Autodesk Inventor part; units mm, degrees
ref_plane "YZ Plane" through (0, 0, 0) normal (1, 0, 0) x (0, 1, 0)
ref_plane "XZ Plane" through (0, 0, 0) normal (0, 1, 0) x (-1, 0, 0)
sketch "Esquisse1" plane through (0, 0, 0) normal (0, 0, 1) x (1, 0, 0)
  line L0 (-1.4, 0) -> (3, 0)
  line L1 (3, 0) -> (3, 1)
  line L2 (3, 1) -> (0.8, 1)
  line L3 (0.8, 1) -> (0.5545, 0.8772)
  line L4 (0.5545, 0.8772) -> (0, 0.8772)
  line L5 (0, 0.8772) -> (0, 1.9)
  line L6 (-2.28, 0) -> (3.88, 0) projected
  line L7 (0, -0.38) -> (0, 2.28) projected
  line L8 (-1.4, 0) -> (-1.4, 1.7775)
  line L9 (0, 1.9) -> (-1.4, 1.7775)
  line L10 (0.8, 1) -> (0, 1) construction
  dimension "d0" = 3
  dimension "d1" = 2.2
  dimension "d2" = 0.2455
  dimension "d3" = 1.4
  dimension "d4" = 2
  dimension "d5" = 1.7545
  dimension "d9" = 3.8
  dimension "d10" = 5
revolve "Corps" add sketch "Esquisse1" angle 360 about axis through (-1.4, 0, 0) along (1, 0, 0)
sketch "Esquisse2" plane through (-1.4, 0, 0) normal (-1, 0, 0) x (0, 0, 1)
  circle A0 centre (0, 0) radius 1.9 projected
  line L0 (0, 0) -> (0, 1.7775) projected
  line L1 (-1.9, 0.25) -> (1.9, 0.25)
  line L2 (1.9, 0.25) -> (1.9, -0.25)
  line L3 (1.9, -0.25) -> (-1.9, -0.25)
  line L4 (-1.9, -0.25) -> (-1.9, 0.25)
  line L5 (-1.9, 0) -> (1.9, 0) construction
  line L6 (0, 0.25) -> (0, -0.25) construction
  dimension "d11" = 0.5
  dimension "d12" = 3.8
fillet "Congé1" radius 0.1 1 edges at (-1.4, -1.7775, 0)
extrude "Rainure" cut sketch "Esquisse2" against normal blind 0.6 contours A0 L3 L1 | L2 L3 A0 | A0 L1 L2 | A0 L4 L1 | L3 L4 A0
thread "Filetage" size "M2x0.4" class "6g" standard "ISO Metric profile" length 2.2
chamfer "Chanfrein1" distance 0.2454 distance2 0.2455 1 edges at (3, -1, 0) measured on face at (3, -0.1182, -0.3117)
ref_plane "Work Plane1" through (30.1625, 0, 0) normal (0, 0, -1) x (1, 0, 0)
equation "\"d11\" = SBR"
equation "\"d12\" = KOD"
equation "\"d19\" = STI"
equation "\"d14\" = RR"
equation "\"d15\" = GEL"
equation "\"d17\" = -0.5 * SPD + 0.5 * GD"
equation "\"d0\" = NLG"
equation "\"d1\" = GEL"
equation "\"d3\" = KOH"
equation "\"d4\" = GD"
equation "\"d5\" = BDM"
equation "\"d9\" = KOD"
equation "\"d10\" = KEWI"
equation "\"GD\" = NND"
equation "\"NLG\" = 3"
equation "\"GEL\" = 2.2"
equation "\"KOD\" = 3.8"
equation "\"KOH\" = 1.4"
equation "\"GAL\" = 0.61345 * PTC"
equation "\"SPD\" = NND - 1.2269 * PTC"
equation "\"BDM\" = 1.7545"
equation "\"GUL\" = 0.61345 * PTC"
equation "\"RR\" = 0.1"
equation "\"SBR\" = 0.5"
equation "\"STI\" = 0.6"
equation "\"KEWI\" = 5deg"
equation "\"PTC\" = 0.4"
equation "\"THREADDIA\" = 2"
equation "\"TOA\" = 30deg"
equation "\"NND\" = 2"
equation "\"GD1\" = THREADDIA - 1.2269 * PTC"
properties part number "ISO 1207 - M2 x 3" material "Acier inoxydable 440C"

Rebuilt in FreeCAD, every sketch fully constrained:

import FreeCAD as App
import Part
import Sketcher

V = App.Vector
Q = App.Units.Quantity


def edges_at(feature, points):
    """Names of the edges that pass closest to the given points."""
    edges = feature.Shape.Edges
    near = lambda p: min(range(len(edges)), key=lambda i: edges[i].distToShape(Part.Vertex(*p))[0])
    return sorted({f"Edge{near(p) + 1}" for p in points})


def add_polygon(sketch, points):
    """Adds a closed chain of lines whose ends are joined by coincident constraints."""
    first, n = sketch.GeometryCount, len(points)
    for a, b in zip(points, points[1:] + points[:1]):
        sketch.addGeometry(Part.LineSegment(App.Vector(*a, 0), App.Vector(*b, 0)), False)
    for i in range(n):
        sketch.addConstraint(Sketcher.Constraint("Coincident", first + i, 2, first + (i + 1) % n, 1))

doc = App.newDocument("Part")
body = doc.addObject("PartDesign::Body", "Body")

# Sketch on XY plane
sketch1 = body.newObject("Sketcher::SketchObject", "Sketch")
sketch1.AttachmentSupport = (doc.getObject("XY_Plane"), [""])
sketch1.MapMode = "FlatFace"
add_polygon(sketch1, [(-1.4, 1.78), (-1.4, 0), (3, 0), (3, 1), (0.8, 1), (0.55, 0.88), (0, 0.88), (0, 1.9)])  # lines 0-7
sketch1.addConstraint([
    Sketcher.Constraint("Vertical", 0),
    Sketcher.Constraint("Horizontal", 1),
    Sketcher.Constraint("Vertical", 2),
    Sketcher.Constraint("Horizontal", 3),
    Sketcher.Constraint("Horizontal", 5),
    Sketcher.Constraint("Vertical", 6),
    Sketcher.Constraint("PointOnObject", 0, 2, -1),
    Sketcher.Constraint("PointOnObject", 5, 2, -2),
    Sketcher.Constraint("DistanceX", 3, 2, 3, 1, 2.2),
    Sketcher.Constraint("DistanceX", -1, 1, 1, 2, 3.0),
    Sketcher.Constraint("DistanceX", 0, 2, -1, 1, 1.4),
    Sketcher.Constraint("DistanceY", 2, 1, 2, 2, 1.0),
    Sketcher.Constraint("Angle", 7, Q("-174.9994 deg")),
    Sketcher.Constraint("DistanceY", -1, 1, 6, 2, 1.9),
    Sketcher.Constraint("DistanceX", 4, 2, 3, 2, 0.2455),
    Sketcher.Constraint("DistanceY", 6, 1, 6, 2, 1.0228),
])
revolution = body.newObject("PartDesign::Revolution", "Revolution")
revolution.Profile = sketch1
revolution.ReferenceAxis = (sketch1, ["H_Axis"])
revolution.Angle = 360
doc.recompute()

fillet = body.newObject("PartDesign::Fillet", "Fillet")
fillet.Base = (revolution, edges_at(revolution, [(-1.4, -1.778, 0)]))
fillet.Radius = 0.1

# Sketch on YZ plane
sketch2 = body.newObject("Sketcher::SketchObject", "Sketch001")
sketch2.AttachmentSupport = (doc.getObject("YZ_Plane"), [""])
sketch2.MapMode = "FlatFace"
sketch2.AttachmentOffset = App.Placement(V(0, 0, -1.4), App.Rotation())
add_polygon(sketch2, [(-0.2, 1.9), (0.2, 1.9), (0.2, -1.9), (-0.2, -1.9)])  # lines 0-3
sketch2.addConstraint([
    Sketcher.Constraint("Horizontal", 0),
    Sketcher.Constraint("Vertical", 1),
    Sketcher.Constraint("Horizontal", 2),
    Sketcher.Constraint("Vertical", 3),
    Sketcher.Constraint("Symmetric", 0, 2, 2, 2, -1, 1),
    Sketcher.Constraint("DistanceX", 0, 1, 0, 2, 0.5),
    Sketcher.Constraint("DistanceY", 1, 2, 1, 1, 3.8),
])
pocket1 = body.newObject("PartDesign::Pocket", "Pocket")
pocket1.Profile = sketch2
pocket1.Length = 0.6
pocket1.Reversed = True
doc.recompute()

chamfer = body.newObject("PartDesign::Chamfer", "Chamfer")
chamfer.Base = (pocket1, edges_at(pocket1, [(3, -1, 0)]))
chamfer.ChamferType = "Two distances"
chamfer.Size = 0.2454
chamfer.Size2 = 0.2455

doc.recompute()
